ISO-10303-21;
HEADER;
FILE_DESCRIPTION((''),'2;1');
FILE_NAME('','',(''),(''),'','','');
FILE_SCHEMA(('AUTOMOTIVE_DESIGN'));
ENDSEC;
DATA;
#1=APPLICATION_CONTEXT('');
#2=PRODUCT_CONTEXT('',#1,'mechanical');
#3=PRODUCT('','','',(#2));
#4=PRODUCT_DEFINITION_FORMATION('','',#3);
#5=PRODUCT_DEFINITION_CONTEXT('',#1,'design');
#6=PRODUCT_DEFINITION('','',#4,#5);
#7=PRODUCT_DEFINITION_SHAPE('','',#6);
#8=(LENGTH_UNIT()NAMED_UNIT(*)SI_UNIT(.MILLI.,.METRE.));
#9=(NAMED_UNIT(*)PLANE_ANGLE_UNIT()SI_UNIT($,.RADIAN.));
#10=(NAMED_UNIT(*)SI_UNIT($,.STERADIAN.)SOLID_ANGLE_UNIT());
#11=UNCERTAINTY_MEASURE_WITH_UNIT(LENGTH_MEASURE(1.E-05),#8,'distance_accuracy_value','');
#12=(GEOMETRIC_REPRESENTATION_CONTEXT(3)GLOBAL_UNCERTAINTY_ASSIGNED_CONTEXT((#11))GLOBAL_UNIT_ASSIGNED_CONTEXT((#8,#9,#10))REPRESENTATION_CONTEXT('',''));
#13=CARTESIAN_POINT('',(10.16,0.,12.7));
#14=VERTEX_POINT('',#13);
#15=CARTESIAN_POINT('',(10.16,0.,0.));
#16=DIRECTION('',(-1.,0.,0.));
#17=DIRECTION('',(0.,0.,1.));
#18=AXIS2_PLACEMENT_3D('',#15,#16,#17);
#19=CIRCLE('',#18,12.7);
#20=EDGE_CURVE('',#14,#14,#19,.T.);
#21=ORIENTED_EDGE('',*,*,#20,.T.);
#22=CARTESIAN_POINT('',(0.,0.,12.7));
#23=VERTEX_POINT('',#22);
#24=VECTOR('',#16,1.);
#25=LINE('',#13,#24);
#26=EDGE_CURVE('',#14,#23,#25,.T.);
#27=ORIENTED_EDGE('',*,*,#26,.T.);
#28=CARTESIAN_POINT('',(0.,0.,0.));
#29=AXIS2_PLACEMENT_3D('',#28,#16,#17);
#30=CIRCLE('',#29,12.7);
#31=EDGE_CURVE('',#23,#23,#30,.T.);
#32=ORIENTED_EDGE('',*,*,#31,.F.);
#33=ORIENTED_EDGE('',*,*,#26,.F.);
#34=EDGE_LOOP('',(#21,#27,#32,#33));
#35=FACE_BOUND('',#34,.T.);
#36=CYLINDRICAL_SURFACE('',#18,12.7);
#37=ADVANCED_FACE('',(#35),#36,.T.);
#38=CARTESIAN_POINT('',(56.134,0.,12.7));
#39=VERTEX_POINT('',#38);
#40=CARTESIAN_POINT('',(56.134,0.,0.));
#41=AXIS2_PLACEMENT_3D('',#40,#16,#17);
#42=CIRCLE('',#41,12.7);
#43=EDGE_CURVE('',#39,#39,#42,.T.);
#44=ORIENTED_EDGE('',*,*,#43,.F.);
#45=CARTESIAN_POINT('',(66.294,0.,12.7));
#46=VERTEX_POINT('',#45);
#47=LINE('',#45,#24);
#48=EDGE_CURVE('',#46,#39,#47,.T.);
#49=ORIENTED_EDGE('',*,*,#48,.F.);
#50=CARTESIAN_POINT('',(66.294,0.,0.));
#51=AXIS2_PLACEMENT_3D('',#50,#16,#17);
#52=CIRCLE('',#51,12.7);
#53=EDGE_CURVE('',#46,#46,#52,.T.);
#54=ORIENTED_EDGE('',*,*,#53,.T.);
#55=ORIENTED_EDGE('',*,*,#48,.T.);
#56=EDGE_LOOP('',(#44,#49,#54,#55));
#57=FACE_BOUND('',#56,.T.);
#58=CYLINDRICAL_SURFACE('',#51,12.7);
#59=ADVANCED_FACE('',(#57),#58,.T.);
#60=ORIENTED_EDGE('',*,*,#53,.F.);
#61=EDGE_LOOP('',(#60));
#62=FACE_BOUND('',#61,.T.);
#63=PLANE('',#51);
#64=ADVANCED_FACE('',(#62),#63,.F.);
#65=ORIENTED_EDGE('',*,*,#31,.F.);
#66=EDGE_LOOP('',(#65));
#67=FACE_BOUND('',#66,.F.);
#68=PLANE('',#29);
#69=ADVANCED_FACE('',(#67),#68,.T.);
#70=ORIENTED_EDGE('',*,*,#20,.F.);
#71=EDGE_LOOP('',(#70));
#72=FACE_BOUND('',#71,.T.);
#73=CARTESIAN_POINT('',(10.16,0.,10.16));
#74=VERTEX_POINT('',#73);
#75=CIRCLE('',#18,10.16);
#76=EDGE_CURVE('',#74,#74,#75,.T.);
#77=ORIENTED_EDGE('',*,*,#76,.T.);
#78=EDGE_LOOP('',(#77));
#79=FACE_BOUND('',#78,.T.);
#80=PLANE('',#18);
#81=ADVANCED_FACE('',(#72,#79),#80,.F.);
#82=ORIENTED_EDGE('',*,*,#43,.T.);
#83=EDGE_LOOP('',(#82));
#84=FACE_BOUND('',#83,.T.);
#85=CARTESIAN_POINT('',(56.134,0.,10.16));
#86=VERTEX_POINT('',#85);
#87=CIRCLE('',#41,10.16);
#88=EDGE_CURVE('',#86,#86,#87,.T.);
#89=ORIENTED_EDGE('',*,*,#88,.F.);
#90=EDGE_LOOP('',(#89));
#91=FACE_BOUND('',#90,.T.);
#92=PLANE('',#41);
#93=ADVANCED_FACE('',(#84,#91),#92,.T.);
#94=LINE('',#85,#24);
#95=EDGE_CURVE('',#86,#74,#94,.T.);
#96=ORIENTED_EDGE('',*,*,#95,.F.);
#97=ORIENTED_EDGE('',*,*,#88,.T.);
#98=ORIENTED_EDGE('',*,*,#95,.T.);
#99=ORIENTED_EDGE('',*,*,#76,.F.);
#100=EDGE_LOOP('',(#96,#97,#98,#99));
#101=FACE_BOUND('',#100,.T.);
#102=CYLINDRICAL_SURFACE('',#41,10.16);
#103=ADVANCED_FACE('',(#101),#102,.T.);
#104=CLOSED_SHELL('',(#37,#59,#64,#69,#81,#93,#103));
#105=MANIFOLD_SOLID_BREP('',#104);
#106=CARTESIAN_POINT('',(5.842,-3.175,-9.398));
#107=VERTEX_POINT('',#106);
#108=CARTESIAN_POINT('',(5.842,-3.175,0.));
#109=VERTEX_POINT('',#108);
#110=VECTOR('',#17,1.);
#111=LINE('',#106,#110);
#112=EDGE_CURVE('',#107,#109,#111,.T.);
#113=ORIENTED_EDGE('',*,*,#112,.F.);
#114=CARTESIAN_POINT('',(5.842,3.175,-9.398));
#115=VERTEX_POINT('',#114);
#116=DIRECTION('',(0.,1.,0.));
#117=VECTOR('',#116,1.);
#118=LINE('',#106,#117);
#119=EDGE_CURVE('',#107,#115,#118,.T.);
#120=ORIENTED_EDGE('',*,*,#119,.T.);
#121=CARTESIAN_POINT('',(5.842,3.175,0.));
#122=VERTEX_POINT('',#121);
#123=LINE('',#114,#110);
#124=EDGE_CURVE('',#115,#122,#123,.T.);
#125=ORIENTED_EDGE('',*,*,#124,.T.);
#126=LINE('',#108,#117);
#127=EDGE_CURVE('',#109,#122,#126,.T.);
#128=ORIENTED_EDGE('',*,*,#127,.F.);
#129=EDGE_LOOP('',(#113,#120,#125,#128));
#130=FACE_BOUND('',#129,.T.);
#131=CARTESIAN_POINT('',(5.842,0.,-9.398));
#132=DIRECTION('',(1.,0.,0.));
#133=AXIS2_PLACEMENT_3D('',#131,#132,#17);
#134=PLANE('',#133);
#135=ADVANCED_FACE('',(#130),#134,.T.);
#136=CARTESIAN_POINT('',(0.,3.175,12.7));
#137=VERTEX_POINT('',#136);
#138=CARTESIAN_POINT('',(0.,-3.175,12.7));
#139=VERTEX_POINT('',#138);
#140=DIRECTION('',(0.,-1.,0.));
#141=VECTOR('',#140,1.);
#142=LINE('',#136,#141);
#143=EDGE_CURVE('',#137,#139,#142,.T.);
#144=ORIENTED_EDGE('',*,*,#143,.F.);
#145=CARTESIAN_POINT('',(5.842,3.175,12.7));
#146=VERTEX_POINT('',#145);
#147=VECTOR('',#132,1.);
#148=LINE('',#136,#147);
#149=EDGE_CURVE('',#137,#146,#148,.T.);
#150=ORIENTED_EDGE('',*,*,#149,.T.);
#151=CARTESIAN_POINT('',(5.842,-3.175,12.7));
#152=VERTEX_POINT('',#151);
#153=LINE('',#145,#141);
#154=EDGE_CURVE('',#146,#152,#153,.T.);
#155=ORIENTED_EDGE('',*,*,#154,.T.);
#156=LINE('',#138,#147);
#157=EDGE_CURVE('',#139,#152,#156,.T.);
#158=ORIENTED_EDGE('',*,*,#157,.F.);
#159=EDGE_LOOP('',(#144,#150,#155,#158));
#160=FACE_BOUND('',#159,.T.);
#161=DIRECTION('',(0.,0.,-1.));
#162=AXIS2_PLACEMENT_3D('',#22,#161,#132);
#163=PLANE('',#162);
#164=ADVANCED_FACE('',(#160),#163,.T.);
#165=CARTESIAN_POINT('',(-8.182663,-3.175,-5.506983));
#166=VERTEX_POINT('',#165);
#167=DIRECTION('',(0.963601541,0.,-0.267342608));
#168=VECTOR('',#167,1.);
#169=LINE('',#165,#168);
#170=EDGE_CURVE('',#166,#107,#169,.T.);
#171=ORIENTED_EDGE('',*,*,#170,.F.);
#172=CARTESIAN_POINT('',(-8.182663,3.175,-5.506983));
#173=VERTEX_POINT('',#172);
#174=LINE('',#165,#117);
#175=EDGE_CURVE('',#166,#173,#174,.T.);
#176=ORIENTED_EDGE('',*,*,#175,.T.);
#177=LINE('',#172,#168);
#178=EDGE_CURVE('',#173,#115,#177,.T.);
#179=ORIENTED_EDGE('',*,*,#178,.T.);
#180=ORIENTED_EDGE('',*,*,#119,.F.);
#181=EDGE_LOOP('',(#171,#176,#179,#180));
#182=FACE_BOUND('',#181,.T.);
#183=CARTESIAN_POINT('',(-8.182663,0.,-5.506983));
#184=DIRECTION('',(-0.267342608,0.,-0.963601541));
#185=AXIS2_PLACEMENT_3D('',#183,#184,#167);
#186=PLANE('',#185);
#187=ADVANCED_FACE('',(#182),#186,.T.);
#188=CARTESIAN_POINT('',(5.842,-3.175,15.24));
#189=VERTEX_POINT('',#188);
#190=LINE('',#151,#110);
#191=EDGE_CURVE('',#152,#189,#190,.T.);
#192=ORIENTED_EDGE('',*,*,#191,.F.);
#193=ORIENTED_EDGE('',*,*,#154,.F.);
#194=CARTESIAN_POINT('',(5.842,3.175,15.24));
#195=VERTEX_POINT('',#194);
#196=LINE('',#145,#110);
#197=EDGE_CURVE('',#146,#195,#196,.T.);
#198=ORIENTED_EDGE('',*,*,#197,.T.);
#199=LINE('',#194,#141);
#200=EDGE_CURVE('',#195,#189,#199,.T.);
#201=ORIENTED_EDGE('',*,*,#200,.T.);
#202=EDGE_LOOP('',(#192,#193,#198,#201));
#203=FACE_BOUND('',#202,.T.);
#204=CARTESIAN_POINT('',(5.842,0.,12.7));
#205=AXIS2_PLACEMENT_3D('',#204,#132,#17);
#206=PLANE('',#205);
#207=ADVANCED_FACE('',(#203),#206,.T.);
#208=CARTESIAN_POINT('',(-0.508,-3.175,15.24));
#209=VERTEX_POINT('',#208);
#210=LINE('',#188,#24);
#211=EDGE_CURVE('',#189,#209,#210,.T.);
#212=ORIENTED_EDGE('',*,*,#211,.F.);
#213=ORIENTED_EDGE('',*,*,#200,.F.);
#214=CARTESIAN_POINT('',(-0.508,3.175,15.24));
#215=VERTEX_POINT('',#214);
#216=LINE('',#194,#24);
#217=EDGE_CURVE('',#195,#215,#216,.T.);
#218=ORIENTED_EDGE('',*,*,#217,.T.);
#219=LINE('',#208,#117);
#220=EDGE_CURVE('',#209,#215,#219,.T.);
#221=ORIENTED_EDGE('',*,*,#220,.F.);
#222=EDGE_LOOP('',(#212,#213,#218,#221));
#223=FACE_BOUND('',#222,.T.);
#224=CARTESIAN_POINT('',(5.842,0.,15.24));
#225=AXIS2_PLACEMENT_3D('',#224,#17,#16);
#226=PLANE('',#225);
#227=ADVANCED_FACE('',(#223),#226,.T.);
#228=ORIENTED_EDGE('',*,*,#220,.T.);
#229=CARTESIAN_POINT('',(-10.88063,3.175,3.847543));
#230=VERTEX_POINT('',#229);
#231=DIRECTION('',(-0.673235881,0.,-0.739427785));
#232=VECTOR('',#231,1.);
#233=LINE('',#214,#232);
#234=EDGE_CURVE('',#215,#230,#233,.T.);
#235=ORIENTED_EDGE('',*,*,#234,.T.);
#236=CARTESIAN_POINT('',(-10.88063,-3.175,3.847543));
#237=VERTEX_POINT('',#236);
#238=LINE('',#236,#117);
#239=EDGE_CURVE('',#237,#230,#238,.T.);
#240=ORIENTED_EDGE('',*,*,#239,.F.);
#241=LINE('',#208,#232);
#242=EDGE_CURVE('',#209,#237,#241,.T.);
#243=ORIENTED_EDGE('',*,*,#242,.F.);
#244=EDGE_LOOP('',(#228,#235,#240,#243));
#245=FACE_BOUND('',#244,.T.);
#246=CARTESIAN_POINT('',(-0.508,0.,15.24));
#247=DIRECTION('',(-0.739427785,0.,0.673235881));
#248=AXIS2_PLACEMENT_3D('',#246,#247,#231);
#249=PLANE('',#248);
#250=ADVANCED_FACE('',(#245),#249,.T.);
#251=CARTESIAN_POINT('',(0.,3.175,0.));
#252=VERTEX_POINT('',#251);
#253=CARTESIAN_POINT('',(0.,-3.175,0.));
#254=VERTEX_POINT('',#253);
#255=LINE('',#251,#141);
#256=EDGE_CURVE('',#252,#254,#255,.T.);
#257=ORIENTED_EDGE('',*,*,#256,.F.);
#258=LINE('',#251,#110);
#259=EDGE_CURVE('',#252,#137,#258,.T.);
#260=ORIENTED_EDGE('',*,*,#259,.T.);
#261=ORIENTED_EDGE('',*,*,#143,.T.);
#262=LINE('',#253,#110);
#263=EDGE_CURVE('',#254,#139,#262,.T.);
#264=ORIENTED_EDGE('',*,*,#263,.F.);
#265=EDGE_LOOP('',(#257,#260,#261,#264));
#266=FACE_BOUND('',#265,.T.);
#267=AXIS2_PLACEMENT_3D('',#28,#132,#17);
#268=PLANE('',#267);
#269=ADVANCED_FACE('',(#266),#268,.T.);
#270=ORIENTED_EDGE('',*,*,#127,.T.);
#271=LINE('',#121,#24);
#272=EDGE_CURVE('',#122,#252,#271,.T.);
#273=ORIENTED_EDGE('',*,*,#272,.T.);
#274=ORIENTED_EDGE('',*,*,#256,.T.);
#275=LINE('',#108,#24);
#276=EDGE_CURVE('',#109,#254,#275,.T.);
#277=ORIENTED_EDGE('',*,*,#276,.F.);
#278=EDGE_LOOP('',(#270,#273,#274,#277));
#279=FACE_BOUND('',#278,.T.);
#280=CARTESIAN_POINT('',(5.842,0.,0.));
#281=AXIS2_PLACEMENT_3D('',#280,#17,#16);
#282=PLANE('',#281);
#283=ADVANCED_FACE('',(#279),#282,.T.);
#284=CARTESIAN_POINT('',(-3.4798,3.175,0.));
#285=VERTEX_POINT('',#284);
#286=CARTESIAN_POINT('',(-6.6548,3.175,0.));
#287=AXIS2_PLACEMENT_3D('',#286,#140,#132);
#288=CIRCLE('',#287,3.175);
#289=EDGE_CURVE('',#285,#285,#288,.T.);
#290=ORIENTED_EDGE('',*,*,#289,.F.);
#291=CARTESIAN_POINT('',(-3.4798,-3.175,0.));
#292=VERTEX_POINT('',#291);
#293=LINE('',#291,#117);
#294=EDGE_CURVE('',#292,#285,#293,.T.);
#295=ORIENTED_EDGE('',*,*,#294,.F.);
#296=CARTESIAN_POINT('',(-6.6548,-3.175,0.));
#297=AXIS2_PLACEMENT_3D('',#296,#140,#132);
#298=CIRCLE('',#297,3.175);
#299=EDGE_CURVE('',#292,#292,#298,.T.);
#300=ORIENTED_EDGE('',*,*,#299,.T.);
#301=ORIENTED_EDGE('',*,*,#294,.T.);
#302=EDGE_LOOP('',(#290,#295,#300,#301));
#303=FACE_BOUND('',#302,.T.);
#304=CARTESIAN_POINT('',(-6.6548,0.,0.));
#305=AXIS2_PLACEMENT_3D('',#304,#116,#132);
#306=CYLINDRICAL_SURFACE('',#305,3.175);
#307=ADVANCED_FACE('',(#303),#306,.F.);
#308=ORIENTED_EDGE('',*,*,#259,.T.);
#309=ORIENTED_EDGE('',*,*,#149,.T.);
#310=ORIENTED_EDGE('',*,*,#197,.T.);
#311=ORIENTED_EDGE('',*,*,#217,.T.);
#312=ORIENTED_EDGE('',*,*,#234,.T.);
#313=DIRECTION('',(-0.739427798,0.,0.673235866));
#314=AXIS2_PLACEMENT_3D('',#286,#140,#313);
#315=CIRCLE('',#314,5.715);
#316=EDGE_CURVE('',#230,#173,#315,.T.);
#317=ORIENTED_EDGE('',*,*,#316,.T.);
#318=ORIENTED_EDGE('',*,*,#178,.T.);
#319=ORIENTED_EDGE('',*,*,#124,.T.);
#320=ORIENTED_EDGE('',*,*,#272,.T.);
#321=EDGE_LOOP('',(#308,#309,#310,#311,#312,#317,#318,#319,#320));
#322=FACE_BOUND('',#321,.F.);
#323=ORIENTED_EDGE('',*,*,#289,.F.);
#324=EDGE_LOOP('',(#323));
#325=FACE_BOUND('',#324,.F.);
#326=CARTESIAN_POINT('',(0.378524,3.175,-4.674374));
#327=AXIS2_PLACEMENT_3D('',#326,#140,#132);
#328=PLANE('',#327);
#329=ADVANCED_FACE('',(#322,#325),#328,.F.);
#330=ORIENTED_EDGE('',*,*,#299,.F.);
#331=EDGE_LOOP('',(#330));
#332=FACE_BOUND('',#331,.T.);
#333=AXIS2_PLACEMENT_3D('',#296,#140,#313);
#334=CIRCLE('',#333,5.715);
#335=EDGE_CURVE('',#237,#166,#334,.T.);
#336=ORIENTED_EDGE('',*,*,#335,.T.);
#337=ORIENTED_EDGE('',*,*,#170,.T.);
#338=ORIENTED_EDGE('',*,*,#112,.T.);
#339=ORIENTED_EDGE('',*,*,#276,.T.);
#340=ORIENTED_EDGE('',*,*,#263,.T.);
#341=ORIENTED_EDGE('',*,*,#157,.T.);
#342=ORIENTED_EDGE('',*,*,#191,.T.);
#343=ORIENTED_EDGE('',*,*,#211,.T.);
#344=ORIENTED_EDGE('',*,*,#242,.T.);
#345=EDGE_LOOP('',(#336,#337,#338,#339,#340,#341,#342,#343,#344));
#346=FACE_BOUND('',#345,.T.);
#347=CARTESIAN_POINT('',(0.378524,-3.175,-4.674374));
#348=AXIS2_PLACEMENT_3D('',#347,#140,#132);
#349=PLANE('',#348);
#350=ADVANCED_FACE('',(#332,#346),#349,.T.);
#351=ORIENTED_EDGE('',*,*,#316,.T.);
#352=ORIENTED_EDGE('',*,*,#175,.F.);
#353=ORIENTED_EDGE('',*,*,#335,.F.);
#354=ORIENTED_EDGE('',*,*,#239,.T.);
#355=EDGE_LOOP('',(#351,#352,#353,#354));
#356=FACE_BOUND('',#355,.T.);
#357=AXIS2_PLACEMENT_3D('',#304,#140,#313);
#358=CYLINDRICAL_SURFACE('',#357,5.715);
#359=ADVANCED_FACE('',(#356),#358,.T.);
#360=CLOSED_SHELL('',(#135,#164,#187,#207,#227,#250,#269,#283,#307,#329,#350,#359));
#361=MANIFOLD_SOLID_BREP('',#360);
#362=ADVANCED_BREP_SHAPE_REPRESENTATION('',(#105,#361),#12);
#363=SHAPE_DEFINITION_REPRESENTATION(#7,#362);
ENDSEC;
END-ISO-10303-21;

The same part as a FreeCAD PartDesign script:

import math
import FreeCAD as App
import Part
import Sketcher
Q = App.Units.Quantity

doc = App.newDocument("Part")
body = doc.addObject("PartDesign::Body", "Body")

# Sketch on XZ plane
sketch1 = body.newObject("Sketcher::SketchObject", "Sketch")
sketch1.AttachmentSupport = (doc.getObject("XZ_Plane"), [""])
sketch1.MapMode = "FlatFace"
sketch1.addGeometry(Part.LineSegment(App.Vector(66.294, 0, 0), App.Vector(66.294, 12.7, 0)), False)
sketch1.addGeometry(Part.LineSegment(App.Vector(66.294, 12.7, 0), App.Vector(56.134, 12.7, 0)), False)
sketch1.addGeometry(Part.LineSegment(App.Vector(56.134, 12.7, 0), App.Vector(56.134, 10.16, 0)), False)
sketch1.addGeometry(Part.LineSegment(App.Vector(56.134, 10.16, 0), App.Vector(10.16, 10.16, 0)), False)
sketch1.addGeometry(Part.LineSegment(App.Vector(10.16, 10.16, 0), App.Vector(10.16, 12.7, 0)), False)
sketch1.addGeometry(Part.LineSegment(App.Vector(10.16, 12.7, 0), App.Vector(0, 12.7, 0)), False)
sketch1.addGeometry(Part.LineSegment(App.Vector(0, 12.7, 0), App.Vector(0, 0, 0)), False)
sketch1.addGeometry(Part.LineSegment(App.Vector(0, 0, 0), App.Vector(66.294, 0, 0)), False)
sketch1.addConstraint(Sketcher.Constraint("Coincident", 0, 2, 1, 1))
sketch1.addConstraint(Sketcher.Constraint("Coincident", 1, 2, 2, 1))
sketch1.addConstraint(Sketcher.Constraint("Coincident", 2, 2, 3, 1))
sketch1.addConstraint(Sketcher.Constraint("Coincident", 3, 2, 4, 1))
sketch1.addConstraint(Sketcher.Constraint("Coincident", 4, 2, 5, 1))
sketch1.addConstraint(Sketcher.Constraint("Coincident", 5, 2, 6, 1))
sketch1.addConstraint(Sketcher.Constraint("Coincident", 6, 2, 7, 1))
sketch1.addConstraint(Sketcher.Constraint("Coincident", 7, 2, 0, 1))
sketch1.addConstraint(Sketcher.Constraint("Vertical", 0))
sketch1.addConstraint(Sketcher.Constraint("Horizontal", 1))
sketch1.addConstraint(Sketcher.Constraint("Vertical", 2))
sketch1.addConstraint(Sketcher.Constraint("Horizontal", 3))
sketch1.addConstraint(Sketcher.Constraint("Vertical", 4))
sketch1.addConstraint(Sketcher.Constraint("Horizontal", 5))
sketch1.addConstraint(Sketcher.Constraint("Vertical", 6))
sketch1.addConstraint(Sketcher.Constraint("Horizontal", 7))
sketch1.addConstraint(Sketcher.Constraint("Coincident", 6, 2, -1, 1))
sketch1.addConstraint(Sketcher.Constraint("Horizontal", 1, 2, 4, 2))
sketch1.addConstraint(Sketcher.Constraint("Equal", 1, 5))
sketch1.addConstraint(Sketcher.Constraint("DistanceX", 1, 2, 1, 1, Q("0.4 in")))
sketch1.addConstraint(Sketcher.Constraint("DistanceY", 0, 1, 0, 2, Q("0.5 in")))
sketch1.addConstraint(Sketcher.Constraint("DistanceY", 2, 2, 2, 1, Q("0.1 in")))
sketch1.addConstraint(Sketcher.Constraint("DistanceX", 3, 2, 3, 1, Q("1.81 in")))
revolution = body.newObject("PartDesign::Revolution", "Revolution")
revolution.Profile = sketch1
revolution.ReferenceAxis = (sketch1, ["H_Axis"])
revolution.Angle = 360
body2 = doc.addObject("PartDesign::Body", "Body001")

# Sketch on XZ plane
sketch2 = body2.newObject("Sketcher::SketchObject", "Sketch001")
sketch2.AttachmentSupport = (doc.getObject("XZ_Plane001"), [""])
sketch2.MapMode = "FlatFace"
sketch2.addGeometry(Part.LineSegment(App.Vector(5.842, 0, 0), App.Vector(0, 0, 0)), False)
sketch2.addGeometry(Part.LineSegment(App.Vector(0, 0, 0), App.Vector(0, 12.7, 0)), False)
sketch2.addGeometry(Part.LineSegment(App.Vector(0, 12.7, 0), App.Vector(5.842, 12.7, 0)), False)
sketch2.addGeometry(Part.LineSegment(App.Vector(5.842, 12.7, 0), App.Vector(5.842, 15.24, 0)), False)
sketch2.addGeometry(Part.LineSegment(App.Vector(5.842, 15.24, 0), App.Vector(-0.508, 15.24, 0)), False)
sketch2.addGeometry(Part.LineSegment(App.Vector(-0.508, 15.24, 0), App.Vector(-10.88063, 3.847543, 0)), False)
sketch2.addGeometry(Part.ArcOfCircle(Part.Circle(App.Vector(-6.6548, 0, 0), App.Vector(0, 0, 1), 5.715), math.radians(137.682696), math.radians(254.493803)), False)
sketch2.addGeometry(Part.LineSegment(App.Vector(-8.182663, -5.506983, 0), App.Vector(5.842, -9.398, 0)), False)
sketch2.addGeometry(Part.LineSegment(App.Vector(5.842, -9.398, 0), App.Vector(5.842, 0, 0)), False)
sketch2.addGeometry(Part.Circle(App.Vector(-6.6548, 0, 0), App.Vector(0, 0, 1), 3.175), False)
sketch2.addConstraint(Sketcher.Constraint("Coincident", 0, 2, 1, 1))
sketch2.addConstraint(Sketcher.Constraint("Coincident", 1, 2, 2, 1))
sketch2.addConstraint(Sketcher.Constraint("Coincident", 2, 2, 3, 1))
sketch2.addConstraint(Sketcher.Constraint("Coincident", 3, 2, 4, 1))
sketch2.addConstraint(Sketcher.Constraint("Coincident", 4, 2, 5, 1))
sketch2.addConstraint(Sketcher.Constraint("Tangent", 5, 2, 6, 1))
sketch2.addConstraint(Sketcher.Constraint("Tangent", 6, 2, 7, 1))
sketch2.addConstraint(Sketcher.Constraint("Coincident", 7, 2, 8, 1))
sketch2.addConstraint(Sketcher.Constraint("Coincident", 8, 2, 0, 1))
sketch2.addConstraint(Sketcher.Constraint("Horizontal", 0))
sketch2.addConstraint(Sketcher.Constraint("Vertical", 1))
sketch2.addConstraint(Sketcher.Constraint("Horizontal", 2))
sketch2.addConstraint(Sketcher.Constraint("Vertical", 3))
sketch2.addConstraint(Sketcher.Constraint("Horizontal", 4))
sketch2.addConstraint(Sketcher.Constraint("Vertical", 8))
sketch2.addConstraint(Sketcher.Constraint("Coincident", 0, 2, -1, 1))
sketch2.addConstraint(Sketcher.Constraint("Coincident", 9, 3, 6, 3))
sketch2.addConstraint(Sketcher.Constraint("PointOnObject", 6, 3, -1))
sketch2.addConstraint(Sketcher.Constraint("Vertical", 3, 2, 7, 2))
sketch2.addConstraint(Sketcher.Constraint("Diameter", 9, Q("0.25 in")))
sketch2.addConstraint(Sketcher.Constraint("DistanceY", 1, 1, 1, 2, Q("0.5 in")))
sketch2.addConstraint(Sketcher.Constraint("DistanceY", 3, 1, 3, 2, Q("0.1 in")))
sketch2.addConstraint(Sketcher.Constraint("Radius", 6, Q("0.225 in")))
sketch2.addConstraint(Sketcher.Constraint("DistanceX", 0, 2, 0, 1, Q("0.23 in")))
sketch2.addConstraint(Sketcher.Constraint("DistanceX", 4, 2, 4, 1, Q("0.25 in")))
sketch2.addConstraint(Sketcher.Constraint("DistanceY", 8, 1, 8, 2, Q("0.37 in")))
sketch2.addConstraint(Sketcher.Constraint("DistanceX", 6, 3, -1, 1, Q("0.262 in")))
pad1 = body2.newObject("PartDesign::Pad", "Pad")
pad1.Profile = sketch2
pad1.Length = Q("0.25 in")
pad1.Midplane = True

doc.recompute()
